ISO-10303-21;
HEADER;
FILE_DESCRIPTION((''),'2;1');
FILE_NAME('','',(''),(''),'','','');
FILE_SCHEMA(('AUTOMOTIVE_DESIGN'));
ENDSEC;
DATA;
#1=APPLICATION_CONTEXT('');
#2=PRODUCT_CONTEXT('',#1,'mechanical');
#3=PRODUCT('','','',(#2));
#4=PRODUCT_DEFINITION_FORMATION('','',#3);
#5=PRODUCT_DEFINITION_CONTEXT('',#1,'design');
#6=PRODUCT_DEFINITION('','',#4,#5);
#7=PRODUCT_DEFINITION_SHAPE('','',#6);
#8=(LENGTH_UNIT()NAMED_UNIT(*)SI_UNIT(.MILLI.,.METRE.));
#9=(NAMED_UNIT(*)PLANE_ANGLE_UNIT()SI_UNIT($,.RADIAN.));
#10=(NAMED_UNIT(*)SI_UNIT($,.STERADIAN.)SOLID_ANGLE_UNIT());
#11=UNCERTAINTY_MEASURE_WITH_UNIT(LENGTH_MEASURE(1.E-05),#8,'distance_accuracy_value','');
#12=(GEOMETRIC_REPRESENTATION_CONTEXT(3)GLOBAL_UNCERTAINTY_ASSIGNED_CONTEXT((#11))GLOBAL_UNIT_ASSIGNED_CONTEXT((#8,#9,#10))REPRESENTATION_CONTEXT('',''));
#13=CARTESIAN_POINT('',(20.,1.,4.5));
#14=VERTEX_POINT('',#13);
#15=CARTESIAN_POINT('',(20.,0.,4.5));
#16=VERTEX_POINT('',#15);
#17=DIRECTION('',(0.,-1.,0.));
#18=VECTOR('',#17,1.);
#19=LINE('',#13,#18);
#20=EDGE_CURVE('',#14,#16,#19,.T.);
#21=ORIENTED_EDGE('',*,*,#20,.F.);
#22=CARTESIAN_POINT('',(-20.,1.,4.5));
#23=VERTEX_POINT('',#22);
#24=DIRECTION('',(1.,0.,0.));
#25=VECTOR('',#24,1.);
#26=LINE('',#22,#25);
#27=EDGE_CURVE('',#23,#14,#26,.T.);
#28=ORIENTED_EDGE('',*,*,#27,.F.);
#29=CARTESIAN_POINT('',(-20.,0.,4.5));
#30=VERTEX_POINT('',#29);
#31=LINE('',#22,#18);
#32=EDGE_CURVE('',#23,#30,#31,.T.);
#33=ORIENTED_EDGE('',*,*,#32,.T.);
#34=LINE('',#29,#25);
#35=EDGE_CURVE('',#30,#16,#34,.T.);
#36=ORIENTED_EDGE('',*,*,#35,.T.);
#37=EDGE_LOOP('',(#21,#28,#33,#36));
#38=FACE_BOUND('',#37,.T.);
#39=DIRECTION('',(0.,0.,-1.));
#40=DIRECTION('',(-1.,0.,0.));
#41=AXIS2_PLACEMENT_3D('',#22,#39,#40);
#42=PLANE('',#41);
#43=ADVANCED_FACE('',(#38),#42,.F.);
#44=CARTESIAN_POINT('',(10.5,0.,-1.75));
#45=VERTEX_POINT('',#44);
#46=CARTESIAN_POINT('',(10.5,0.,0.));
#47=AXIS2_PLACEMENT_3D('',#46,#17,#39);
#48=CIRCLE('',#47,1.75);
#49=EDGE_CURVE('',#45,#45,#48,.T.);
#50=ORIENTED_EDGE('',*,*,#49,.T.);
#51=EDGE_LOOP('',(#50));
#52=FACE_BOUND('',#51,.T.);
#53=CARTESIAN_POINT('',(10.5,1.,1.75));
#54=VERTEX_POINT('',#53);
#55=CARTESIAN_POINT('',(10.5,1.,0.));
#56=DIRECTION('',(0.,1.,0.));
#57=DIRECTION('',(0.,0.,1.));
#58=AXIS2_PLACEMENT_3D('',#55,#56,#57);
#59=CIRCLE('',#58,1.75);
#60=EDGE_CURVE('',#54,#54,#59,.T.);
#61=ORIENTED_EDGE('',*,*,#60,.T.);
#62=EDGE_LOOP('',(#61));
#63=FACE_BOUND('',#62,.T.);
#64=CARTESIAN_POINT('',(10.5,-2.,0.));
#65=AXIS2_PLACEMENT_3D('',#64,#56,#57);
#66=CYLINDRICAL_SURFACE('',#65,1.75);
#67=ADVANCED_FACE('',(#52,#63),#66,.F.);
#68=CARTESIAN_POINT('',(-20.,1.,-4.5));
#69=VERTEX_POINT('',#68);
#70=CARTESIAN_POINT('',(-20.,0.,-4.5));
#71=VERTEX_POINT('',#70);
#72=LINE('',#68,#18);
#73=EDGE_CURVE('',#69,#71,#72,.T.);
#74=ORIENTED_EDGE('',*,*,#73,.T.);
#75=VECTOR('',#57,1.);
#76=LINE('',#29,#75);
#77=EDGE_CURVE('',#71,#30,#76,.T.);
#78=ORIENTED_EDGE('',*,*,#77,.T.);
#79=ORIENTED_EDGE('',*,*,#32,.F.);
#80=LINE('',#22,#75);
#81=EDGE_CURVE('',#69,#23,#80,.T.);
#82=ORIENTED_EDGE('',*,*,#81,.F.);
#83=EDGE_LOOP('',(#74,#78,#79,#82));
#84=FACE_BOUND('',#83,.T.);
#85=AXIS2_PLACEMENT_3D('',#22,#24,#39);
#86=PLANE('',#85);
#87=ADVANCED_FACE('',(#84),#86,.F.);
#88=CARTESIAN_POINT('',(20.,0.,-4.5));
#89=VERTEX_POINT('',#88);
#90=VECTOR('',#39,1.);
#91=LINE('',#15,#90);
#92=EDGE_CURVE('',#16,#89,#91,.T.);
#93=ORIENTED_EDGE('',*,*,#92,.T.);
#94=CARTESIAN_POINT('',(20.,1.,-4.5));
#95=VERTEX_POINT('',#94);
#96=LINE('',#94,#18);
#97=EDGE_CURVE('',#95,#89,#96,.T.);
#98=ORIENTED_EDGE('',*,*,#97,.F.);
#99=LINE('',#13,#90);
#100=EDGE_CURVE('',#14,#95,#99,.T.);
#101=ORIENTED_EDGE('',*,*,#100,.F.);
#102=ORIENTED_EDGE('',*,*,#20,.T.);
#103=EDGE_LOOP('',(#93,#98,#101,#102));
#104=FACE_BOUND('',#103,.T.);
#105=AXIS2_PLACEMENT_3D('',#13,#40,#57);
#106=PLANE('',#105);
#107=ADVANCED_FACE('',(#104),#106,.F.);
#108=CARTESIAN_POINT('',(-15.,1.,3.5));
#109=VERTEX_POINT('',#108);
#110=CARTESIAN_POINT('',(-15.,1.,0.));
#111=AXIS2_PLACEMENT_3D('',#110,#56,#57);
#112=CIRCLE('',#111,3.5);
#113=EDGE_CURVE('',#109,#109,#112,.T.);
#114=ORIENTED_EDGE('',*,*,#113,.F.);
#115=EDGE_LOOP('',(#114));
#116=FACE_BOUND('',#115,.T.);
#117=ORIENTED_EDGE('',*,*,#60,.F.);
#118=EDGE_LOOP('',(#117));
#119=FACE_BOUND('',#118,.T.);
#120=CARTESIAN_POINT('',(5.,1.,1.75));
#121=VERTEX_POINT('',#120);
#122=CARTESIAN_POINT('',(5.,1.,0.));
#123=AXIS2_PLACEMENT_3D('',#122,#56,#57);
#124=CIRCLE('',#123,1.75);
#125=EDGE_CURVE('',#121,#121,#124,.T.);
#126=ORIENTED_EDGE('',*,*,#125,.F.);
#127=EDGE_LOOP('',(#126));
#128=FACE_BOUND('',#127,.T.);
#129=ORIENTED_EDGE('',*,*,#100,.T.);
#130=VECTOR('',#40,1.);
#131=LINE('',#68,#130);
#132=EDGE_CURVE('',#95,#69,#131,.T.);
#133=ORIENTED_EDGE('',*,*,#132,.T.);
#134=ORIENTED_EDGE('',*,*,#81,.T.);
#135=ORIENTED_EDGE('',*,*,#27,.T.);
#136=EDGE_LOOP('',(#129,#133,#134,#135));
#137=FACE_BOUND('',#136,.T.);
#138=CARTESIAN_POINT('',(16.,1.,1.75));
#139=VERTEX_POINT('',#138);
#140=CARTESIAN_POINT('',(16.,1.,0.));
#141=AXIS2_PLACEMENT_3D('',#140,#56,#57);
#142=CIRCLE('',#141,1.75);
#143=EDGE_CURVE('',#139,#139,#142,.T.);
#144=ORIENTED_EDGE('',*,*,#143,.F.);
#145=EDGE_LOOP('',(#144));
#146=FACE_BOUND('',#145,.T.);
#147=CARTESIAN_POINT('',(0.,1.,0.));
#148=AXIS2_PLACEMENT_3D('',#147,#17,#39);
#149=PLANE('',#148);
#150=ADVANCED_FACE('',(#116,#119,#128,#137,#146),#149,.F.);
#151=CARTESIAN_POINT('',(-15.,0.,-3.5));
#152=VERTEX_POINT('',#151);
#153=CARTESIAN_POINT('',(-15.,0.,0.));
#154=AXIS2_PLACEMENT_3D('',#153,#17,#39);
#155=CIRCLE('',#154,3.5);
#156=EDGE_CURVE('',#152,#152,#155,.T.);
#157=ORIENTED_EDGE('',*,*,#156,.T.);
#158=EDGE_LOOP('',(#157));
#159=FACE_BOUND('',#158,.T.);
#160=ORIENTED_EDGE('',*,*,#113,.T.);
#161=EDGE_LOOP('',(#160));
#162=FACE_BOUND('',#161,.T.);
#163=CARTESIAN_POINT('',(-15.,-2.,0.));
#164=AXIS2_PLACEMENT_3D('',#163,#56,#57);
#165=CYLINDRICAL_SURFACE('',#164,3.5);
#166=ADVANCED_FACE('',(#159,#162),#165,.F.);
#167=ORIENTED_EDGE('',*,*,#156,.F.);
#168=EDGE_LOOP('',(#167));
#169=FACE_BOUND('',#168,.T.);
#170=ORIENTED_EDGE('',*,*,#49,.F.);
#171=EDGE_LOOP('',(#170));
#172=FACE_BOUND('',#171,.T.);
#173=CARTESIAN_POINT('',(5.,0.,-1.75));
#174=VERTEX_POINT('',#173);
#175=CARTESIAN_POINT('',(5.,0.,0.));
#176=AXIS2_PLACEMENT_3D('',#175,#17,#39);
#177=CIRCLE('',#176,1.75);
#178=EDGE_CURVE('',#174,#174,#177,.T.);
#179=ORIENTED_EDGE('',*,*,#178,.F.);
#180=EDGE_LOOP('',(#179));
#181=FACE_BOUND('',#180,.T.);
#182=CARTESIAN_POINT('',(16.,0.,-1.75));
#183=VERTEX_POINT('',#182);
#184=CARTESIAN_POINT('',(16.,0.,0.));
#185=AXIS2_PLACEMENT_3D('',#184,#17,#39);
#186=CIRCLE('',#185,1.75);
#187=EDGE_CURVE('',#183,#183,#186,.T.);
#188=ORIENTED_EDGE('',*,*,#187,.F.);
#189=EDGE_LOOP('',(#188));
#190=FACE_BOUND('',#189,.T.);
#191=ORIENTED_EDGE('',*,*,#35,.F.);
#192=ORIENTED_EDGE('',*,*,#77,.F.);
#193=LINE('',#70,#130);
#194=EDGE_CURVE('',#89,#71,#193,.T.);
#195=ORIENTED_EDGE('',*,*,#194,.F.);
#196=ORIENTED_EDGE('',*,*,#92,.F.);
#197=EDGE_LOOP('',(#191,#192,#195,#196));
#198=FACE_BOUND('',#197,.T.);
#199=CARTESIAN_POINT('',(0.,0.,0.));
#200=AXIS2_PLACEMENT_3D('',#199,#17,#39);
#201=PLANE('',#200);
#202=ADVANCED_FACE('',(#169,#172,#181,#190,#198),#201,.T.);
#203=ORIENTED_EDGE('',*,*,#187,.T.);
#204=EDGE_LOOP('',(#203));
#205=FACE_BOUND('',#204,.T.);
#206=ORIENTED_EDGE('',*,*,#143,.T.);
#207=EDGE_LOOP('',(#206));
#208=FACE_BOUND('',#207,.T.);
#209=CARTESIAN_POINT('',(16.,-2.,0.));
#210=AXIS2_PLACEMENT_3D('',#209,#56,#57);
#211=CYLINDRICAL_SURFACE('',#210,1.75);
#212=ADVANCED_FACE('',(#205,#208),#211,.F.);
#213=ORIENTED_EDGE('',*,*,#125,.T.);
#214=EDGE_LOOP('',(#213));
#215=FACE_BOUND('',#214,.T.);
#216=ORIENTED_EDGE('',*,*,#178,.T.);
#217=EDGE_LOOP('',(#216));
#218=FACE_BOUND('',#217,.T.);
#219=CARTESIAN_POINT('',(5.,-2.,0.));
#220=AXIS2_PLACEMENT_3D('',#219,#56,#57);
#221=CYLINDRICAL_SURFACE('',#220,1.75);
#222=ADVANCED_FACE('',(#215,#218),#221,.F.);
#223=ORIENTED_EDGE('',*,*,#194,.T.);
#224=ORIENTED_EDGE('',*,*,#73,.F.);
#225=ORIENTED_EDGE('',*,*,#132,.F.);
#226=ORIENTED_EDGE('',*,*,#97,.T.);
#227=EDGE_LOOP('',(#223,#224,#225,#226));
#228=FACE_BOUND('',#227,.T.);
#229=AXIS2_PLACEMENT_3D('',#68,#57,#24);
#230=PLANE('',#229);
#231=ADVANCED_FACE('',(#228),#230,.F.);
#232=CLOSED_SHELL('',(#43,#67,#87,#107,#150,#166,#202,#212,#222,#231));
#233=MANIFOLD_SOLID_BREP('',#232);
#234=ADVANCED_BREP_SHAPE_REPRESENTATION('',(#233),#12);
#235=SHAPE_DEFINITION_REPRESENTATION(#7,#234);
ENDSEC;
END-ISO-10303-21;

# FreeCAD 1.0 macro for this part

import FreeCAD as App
import Part
import Sketcher
Q = App.Units.Quantity

doc = App.newDocument("Part")
body = doc.addObject("PartDesign::Body", "Body")

sketch1 = body.newObject("Sketcher::SketchObject", "Sketch")
sketch1.AttachmentSupport = (doc.getObject("XZ_Plane"), [""])
sketch1.MapMode = "FlatFace"
sketch1.addGeometry([
    Part.LineSegment(App.Vector(-20, -4, 0), App.Vector(-20, 4, 0)),
    Part.LineSegment(App.Vector(-20, 4, 0), App.Vector(20, 4, 0)),
    Part.LineSegment(App.Vector(20, 4, 0), App.Vector(20, -4, 0)),
    Part.LineSegment(App.Vector(20, -4, 0), App.Vector(-20, -4, 0)),
], False)
sketch1.addConstraint([
    Sketcher.Constraint("Coincident", 0, 2, 1, 1),
    Sketcher.Constraint("Coincident", 1, 2, 2, 1),
    Sketcher.Constraint("Coincident", 2, 2, 3, 1),
    Sketcher.Constraint("Coincident", 3, 2, 0, 1),
    Sketcher.Constraint("Vertical", 0),
    Sketcher.Constraint("Horizontal", 1),
    Sketcher.Constraint("Vertical", 2),
    Sketcher.Constraint("Horizontal", 3),
    Sketcher.Constraint("Symmetric", 0, 2, 2, 2, -1, 1),
    Sketcher.Constraint("DistanceX", 1, 1, 1, 2, Q("40 mm")),
    Sketcher.Constraint("DistanceY", 0, 1, 0, 2, Q("9 mm")),
])
pad1 = body.newObject("PartDesign::Pad", "Pad")
pad1.Profile = sketch1
pad1.Length = 1
pad1.Reversed = True

sketch2 = body.newObject("Sketcher::SketchObject", "Sketch001")
sketch2.AttachmentSupport = (doc.getObject("XZ_Plane"), [""])
sketch2.MapMode = "FlatFace"
sketch2.AttachmentOffset = App.Placement(App.Vector(0, 0, -1), App.Rotation())
sketch2.addGeometry(Part.Circle(App.Vector(-15, 0, 0), App.Vector(0, 0, 1), 3.5), False)
sketch2.addConstraint([
    Sketcher.Constraint("PointOnObject", 0, 3, -1),
    Sketcher.Constraint("Diameter", 0, Q("7 mm")),
    Sketcher.Constraint("DistanceX", 0, 3, -1, 1, Q("15 mm")),
])
pocket1 = body.newObject("PartDesign::Pocket", "Pocket")
pocket1.Profile = sketch2
pocket1.Length = 3
pocket1.Reversed = True

sketch3 = body.newObject("Sketcher::SketchObject", "Sketch002")
sketch3.AttachmentSupport = (doc.getObject("XZ_Plane"), [""])
sketch3.MapMode = "FlatFace"
sketch3.AttachmentOffset = App.Placement(App.Vector(0, 0, -1), App.Rotation())
sketch3.addGeometry(Part.Circle(App.Vector(5, 0, 0), App.Vector(0, 0, 1), 1.8), False)
sketch3.addConstraint([
    Sketcher.Constraint("PointOnObject", 0, 3, -1),
    Sketcher.Constraint("Diameter", 0, Q("3.5 mm")),
    Sketcher.Constraint("DistanceX", -1, 1, 0, 3, Q("5 mm")),
])
pocket2 = body.newObject("PartDesign::Pocket", "Pocket001")
pocket2.Profile = sketch3
pocket2.Length = 3
pocket2.Reversed = True
doc.recompute()

linearpattern = body.newObject("PartDesign::LinearPattern", "LinearPattern")
linearpattern.Originals = [pocket2]
linearpattern.Direction = (doc.getObject("X_Axis"), [""])
linearpattern.Mode = "offset"
linearpattern.Offset = 5.5
linearpattern.Occurrences = 3
body.Tip = linearpattern

doc.recompute()
